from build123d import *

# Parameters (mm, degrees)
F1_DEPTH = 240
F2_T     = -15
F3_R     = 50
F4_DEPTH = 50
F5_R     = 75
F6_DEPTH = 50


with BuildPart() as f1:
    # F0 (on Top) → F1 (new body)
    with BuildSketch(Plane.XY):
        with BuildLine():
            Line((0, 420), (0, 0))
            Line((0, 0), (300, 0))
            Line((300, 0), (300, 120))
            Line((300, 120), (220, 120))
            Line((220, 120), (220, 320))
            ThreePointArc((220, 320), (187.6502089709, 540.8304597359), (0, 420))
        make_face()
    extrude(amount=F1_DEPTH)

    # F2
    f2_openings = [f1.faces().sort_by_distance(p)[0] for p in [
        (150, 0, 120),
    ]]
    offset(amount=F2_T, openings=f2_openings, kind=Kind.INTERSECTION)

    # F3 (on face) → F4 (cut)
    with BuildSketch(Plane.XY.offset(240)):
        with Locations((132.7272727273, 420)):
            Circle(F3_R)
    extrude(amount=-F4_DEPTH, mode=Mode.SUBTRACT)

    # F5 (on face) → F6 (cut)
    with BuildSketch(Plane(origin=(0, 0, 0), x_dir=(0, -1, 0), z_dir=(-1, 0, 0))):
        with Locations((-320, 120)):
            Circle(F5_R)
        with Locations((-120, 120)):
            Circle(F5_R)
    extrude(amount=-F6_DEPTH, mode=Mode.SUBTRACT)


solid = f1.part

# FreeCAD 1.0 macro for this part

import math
import FreeCAD as App
import Part
import Sketcher


def faces_at(feature, points):
    """Names of the faces that lie closest to the given points."""
    faces = feature.Shape.Faces
    near = lambda p: min(range(len(faces)), key=lambda i: faces[i].distToShape(Part.Vertex(*p))[0])
    return sorted({f"Face{near(p) + 1}" for p in points})

doc = App.newDocument("Part")
params = doc.addObject("Spreadsheet::Sheet", "Params")
for row, (alias, value) in enumerate([
    ("sketch1_width", "300 mm"),
    ("sketch1_width2", "80 mm"),
    ("sketch1_height", "420 mm"),
    ("sketch1_height2", "120 mm"),
    ("sketch1_height3", "200 mm"),
    ("pad1_length", "240 mm"),
    ("thickness_wall", "15 mm"),
    ("sketch2_diameter", "100 mm"),
    ("pocket1_length", "50 mm"),
    ("sketch3_diameter", "150 mm"),
    ("pocket2_length", "50 mm"),
], start=1):
    params.set(f"A{row}", alias)
    params.set(f"B{row}", "=" + value)
    params.setAlias(f"B{row}", alias)

body = doc.addObject("PartDesign::Body", "Body")

# Sketch on XY plane
sketch1 = body.newObject("Sketcher::SketchObject", "Sketch")
sketch1.AttachmentSupport = (doc.getObject("XY_Plane"), [""])
sketch1.MapMode = "FlatFace"
sketch1.addGeometry(Part.LineSegment(App.Vector(0, 420, 0), App.Vector(0, 0, 0)), False)
sketch1.addGeometry(Part.LineSegment(App.Vector(0, 0, 0), App.Vector(300, 0, 0)), False)
sketch1.addGeometry(Part.LineSegment(App.Vector(300, 0, 0), App.Vector(300, 120, 0)), False)
sketch1.addGeometry(Part.LineSegment(App.Vector(300, 120, 0), App.Vector(220, 120, 0)), False)
sketch1.addGeometry(Part.LineSegment(App.Vector(220, 120, 0), App.Vector(220, 320, 0)), False)
sketch1.addGeometry(Part.ArcOfCircle(Part.Circle(App.Vector(133, 420, 0), App.Vector(0, 0, 1), 133), math.radians(-49), math.radians(180)), False)
sketch1.addConstraint(Sketcher.Constraint("Coincident", 0, 2, 1, 1))
sketch1.addConstraint(Sketcher.Constraint("Coincident", 1, 2, 2, 1))
sketch1.addConstraint(Sketcher.Constraint("Coincident", 2, 2, 3, 1))
sketch1.addConstraint(Sketcher.Constraint("Coincident", 3, 2, 4, 1))
sketch1.addConstraint(Sketcher.Constraint("Coincident", 4, 2, 5, 1))
sketch1.addConstraint(Sketcher.Constraint("Tangent", 5, 2, 0, 1))
sketch1.addConstraint(Sketcher.Constraint("Vertical", 0))
sketch1.addConstraint(Sketcher.Constraint("Horizontal", 1))
sketch1.addConstraint(Sketcher.Constraint("Vertical", 2))
sketch1.addConstraint(Sketcher.Constraint("Horizontal", 3))
sketch1.addConstraint(Sketcher.Constraint("Vertical", 4))
sketch1.addConstraint(Sketcher.Constraint("Coincident", 0, 2, -1, 1))
sketch1.addConstraint(Sketcher.Constraint("DistanceX", 1, 1, 1, 2, 300.0))
sketch1.addConstraint(Sketcher.Constraint("DistanceX", 3, 2, 3, 1, 80.0))
sketch1.addConstraint(Sketcher.Constraint("DistanceY", 0, 2, 0, 1, 420.0))
sketch1.addConstraint(Sketcher.Constraint("DistanceY", 2, 1, 2, 2, 120.0))
sketch1.addConstraint(Sketcher.Constraint("DistanceY", 4, 1, 4, 2, 200.0))
sketch1.setExpression("Constraints[12]", "Params.sketch1_width")
sketch1.setExpression("Constraints[13]", "Params.sketch1_width2")
sketch1.setExpression("Constraints[14]", "Params.sketch1_height")
sketch1.setExpression("Constraints[15]", "Params.sketch1_height2")
sketch1.setExpression("Constraints[16]", "Params.sketch1_height3")
pad1 = body.newObject("PartDesign::Pad", "Pad")
pad1.Profile = sketch1
pad1.setExpression("Length", "Params.pad1_length")
doc.recompute()

thickness = body.newObject("PartDesign::Thickness", "Thickness")
thickness.Base = (pad1, faces_at(pad1, [(150, 0, 120)]))
thickness.setExpression("Value", "Params.thickness_wall")
thickness.Reversed = True
thickness.Join = "Intersection"

# Sketch on XY plane
sketch2 = body.newObject("Sketcher::SketchObject", "Sketch001")
sketch2.AttachmentSupport = (doc.getObject("XY_Plane"), [""])
sketch2.MapMode = "FlatFace"
sketch2.AttachmentOffset = App.Placement(App.Vector(0, 0, 240), App.Rotation())
sketch2.addGeometry(Part.Circle(App.Vector(133, 420, 0), App.Vector(0, 0, 1), 50), False)
sketch2.addConstraint(Sketcher.Constraint("Diameter", 0, 100.0))
sketch2.addConstraint(Sketcher.Constraint("DistanceY", -1, 1, 0, 3, 420.0))
sketch2.addConstraint(Sketcher.Constraint("DistanceX", -1, 1, 0, 3, 132.727273))
sketch2.setExpression("Constraints[0]", "Params.sketch2_diameter")
pocket1 = body.newObject("PartDesign::Pocket", "Pocket")
pocket1.Profile = sketch2
pocket1.setExpression("Length", "Params.pocket1_length")

# Sketch on YZ plane
sketch3 = body.newObject("Sketcher::SketchObject", "Sketch002")
sketch3.AttachmentSupport = (doc.getObject("YZ_Plane"), [""])
sketch3.MapMode = "FlatFace"
sketch3.addGeometry(Part.Circle(App.Vector(320, 120, 0), App.Vector(0, 0, 1), 75), False)
sketch3.addGeometry(Part.Circle(App.Vector(120, 120, 0), App.Vector(0, 0, 1), 75), False)
sketch3.addConstraint(Sketcher.Constraint("Equal", 0, 1))
sketch3.addConstraint(Sketcher.Constraint("Horizontal", 0, 3, 1, 3))
sketch3.addConstraint(Sketcher.Constraint("Diameter", 0, 150.0))
sketch3.addConstraint(Sketcher.Constraint("DistanceX", -1, 1, 0, 3, 320.0))
sketch3.addConstraint(Sketcher.Constraint("DistanceY", -1, 1, 0, 3, 120.0))
sketch3.addConstraint(Sketcher.Constraint("DistanceX", -1, 1, 1, 3, 120.0))
sketch3.setExpression("Constraints[2]", "Params.sketch3_diameter")
pocket2 = body.newObject("PartDesign::Pocket", "Pocket001")
pocket2.Profile = sketch3
pocket2.setExpression("Length", "Params.pocket2_length")
pocket2.Reversed = True

doc.recompute()
